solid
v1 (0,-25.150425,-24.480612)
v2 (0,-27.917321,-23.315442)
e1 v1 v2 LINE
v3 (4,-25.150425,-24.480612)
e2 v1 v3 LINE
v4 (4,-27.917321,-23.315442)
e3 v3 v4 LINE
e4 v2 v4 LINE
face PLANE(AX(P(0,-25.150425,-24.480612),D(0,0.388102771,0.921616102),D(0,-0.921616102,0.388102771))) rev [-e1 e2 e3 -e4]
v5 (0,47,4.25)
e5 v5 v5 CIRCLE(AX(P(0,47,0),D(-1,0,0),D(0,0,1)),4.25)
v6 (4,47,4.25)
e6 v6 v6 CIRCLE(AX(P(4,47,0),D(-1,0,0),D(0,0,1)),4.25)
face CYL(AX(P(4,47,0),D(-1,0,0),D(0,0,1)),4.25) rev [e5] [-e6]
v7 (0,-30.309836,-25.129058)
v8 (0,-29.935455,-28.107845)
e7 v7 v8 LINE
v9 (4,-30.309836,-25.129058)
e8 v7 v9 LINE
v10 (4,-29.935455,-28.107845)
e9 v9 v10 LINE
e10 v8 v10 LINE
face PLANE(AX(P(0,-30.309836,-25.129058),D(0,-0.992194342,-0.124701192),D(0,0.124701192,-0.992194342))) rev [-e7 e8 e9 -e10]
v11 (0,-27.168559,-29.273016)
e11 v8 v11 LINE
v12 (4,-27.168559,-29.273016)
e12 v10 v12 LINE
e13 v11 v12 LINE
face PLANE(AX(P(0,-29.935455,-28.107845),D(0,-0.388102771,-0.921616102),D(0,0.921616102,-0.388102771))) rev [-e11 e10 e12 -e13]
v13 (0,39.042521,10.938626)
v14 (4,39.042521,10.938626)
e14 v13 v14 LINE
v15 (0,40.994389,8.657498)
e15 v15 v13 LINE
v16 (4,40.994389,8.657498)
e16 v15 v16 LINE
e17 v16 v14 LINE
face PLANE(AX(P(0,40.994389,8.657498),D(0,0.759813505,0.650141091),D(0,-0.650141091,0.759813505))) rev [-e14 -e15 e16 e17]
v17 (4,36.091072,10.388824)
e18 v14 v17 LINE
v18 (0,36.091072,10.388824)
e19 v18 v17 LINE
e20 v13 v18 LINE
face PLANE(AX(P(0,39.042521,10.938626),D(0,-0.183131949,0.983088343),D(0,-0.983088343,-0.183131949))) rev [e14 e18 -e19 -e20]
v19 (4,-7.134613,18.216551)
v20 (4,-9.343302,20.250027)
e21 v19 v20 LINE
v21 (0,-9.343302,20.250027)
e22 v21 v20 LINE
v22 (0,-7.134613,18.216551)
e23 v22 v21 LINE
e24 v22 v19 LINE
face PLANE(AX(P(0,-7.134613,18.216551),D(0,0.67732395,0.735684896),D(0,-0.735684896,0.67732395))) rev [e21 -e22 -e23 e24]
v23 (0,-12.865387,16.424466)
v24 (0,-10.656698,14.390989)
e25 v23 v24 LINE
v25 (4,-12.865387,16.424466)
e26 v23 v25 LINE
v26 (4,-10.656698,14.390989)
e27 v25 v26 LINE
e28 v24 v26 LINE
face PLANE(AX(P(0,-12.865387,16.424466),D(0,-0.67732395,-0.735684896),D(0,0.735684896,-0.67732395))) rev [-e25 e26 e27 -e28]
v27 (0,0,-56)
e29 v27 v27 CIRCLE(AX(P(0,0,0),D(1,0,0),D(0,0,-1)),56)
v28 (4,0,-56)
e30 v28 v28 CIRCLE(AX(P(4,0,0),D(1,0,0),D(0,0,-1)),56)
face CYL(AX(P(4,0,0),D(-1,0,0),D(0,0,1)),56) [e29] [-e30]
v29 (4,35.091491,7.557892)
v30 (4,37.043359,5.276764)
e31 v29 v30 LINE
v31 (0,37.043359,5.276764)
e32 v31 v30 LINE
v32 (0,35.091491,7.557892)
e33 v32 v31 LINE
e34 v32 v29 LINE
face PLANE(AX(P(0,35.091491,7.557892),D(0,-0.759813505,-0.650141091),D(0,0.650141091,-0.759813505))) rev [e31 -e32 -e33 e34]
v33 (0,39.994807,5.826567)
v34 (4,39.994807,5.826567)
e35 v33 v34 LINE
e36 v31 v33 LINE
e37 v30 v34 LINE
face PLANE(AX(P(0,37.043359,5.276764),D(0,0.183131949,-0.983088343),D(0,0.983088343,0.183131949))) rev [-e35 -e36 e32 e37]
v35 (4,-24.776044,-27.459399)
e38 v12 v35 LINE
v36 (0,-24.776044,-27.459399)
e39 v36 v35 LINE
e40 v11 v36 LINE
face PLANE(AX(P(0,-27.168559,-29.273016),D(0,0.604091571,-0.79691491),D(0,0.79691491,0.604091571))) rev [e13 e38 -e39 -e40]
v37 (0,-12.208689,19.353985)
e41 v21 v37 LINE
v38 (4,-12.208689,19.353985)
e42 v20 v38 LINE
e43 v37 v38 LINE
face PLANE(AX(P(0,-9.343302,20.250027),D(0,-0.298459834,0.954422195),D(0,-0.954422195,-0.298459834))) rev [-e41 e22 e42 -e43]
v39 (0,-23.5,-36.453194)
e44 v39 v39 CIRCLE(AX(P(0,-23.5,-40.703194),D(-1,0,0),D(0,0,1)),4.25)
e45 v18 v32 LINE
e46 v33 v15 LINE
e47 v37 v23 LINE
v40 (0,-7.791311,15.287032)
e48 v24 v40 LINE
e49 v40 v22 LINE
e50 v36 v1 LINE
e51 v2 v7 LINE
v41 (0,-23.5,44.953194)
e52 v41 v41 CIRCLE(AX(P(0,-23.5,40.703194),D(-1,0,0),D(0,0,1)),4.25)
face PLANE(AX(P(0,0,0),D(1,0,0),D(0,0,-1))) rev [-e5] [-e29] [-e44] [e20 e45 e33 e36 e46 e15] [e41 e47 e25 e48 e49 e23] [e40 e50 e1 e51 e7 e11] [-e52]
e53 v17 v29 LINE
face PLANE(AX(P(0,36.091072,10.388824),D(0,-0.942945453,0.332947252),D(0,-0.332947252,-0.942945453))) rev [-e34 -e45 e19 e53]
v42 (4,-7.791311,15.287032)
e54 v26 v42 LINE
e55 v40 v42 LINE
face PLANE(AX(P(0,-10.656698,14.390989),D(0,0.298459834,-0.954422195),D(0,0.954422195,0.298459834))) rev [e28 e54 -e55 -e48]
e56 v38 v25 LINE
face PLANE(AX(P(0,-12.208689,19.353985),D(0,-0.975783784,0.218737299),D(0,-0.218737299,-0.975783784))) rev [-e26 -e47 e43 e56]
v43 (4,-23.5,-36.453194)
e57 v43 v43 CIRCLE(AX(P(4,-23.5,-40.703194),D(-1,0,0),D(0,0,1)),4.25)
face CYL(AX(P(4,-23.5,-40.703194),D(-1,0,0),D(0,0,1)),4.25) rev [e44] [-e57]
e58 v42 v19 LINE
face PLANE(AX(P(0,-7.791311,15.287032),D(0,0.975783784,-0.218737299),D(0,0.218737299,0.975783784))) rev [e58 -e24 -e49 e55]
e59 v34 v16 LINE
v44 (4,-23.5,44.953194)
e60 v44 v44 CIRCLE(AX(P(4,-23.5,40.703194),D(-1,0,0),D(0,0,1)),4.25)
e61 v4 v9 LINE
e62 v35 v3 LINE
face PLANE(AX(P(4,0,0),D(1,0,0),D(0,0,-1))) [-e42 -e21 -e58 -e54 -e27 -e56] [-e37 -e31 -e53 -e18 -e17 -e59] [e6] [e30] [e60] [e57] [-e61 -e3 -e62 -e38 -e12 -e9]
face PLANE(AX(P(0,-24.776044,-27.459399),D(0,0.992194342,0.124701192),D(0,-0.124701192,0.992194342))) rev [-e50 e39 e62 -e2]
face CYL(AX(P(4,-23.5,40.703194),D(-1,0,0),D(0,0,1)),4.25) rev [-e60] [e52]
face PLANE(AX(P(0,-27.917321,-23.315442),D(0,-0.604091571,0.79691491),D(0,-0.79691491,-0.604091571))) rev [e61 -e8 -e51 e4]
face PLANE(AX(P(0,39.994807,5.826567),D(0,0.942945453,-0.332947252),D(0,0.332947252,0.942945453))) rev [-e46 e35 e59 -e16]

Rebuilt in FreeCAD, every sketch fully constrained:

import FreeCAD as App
import Part
import Sketcher
from FreeCAD import Vector

doc = App.newDocument("Part")
params = doc.addObject("Spreadsheet::Sheet", "Params")
for row, (alias, value) in enumerate([
    ("sketch1_diameter", "112 mm"),
    ("pad1_length", "4 mm"),
    ("sketch2_diameter", "8.5 mm"),
], start=1):
    params.set(f"A{row}", alias)
    params.set(f"B{row}", "=" + value)
    params.setAlias(f"B{row}", alias)

body = doc.addObject("PartDesign::Body", "Body")

# Sketch on YZ plane
sketch1 = body.newObject("Sketcher::SketchObject", "Sketch")
sketch1.AttachmentSupport = (doc.getObject("YZ_Plane"), [""])
sketch1.MapMode = "FlatFace"
sketch1.addGeometry(Part.Circle(Vector(0, 0, 0), Vector(0, 0, 1), 56), False)
sketch1.addConstraint(Sketcher.Constraint("Coincident", 0, 3, -1, 1))
sketch1.addConstraint(Sketcher.Constraint("Diameter", 0, 112.0))
sketch1.setExpression("Constraints[1]", "Params.sketch1_diameter")
pad1 = body.newObject("PartDesign::Pad", "Pad")
pad1.Profile = sketch1
pad1.setExpression("Length", "Params.pad1_length")

# Sketch on YZ plane
sketch2 = body.newObject("Sketcher::SketchObject", "Sketch001")
sketch2.AttachmentSupport = (doc.getObject("YZ_Plane"), [""])
sketch2.MapMode = "FlatFace"
sketch2.addGeometry(Part.Circle(Vector(47, 0, 0), Vector(0, 0, 1), 4.25), False)
sketch2.addGeometry(Part.Circle(Vector(-23.5, 40.703194, 0), Vector(0, 0, 1), 4.25), False)
sketch2.addGeometry(Part.Circle(Vector(-23.5, -40.703194, 0), Vector(0, 0, 1), 4.25), False)
sketch2.addConstraint(Sketcher.Constraint("Equal", 0, 1))
sketch2.addConstraint(Sketcher.Constraint("Equal", 1, 2))
sketch2.addConstraint(Sketcher.Constraint("Symmetric", 1, 3, 2, 3, -1))
sketch2.addConstraint(Sketcher.Constraint("PointOnObject", 0, 3, -1))
sketch2.addConstraint(Sketcher.Constraint("Diameter", 0, 8.5))
sketch2.addConstraint(Sketcher.Constraint("DistanceX", -1, 1, 0, 3, 47.0))
sketch2.addConstraint(Sketcher.Constraint("DistanceX", 1, 3, -1, 1, 23.5))
sketch2.addConstraint(Sketcher.Constraint("DistanceY", -1, 1, 1, 3, 40.703194))
sketch2.setExpression("Constraints[4]", "Params.sketch2_diameter")
pocket1 = body.newObject("PartDesign::Pocket", "Pocket")
pocket1.Profile = sketch2
pocket1.Type = "ThroughAll"
pocket1.Reversed = True

# Sketch on YZ plane
sketch3 = body.newObject("Sketcher::SketchObject", "Sketch002")
sketch3.AttachmentSupport = (doc.getObject("YZ_Plane"), [""])
sketch3.MapMode = "FlatFace"
sketch3.AttachmentOffset = App.Placement(Vector(0, 0, 4), App.Rotation())
sketch3.addGeometry(Part.LineSegment(Vector(-24.776044, -27.459399, 0), Vector(-25.150425, -24.480612, 0)), False)
sketch3.addGeometry(Part.LineSegment(Vector(-25.150425, -24.480612, 0), Vector(-27.917321, -23.315442, 0)), False)
sketch3.addGeometry(Part.LineSegment(Vector(-27.917321, -23.315442, 0), Vector(-30.309836, -25.129058, 0)), False)
sketch3.addGeometry(Part.LineSegment(Vector(-30.309836, -25.129058, 0), Vector(-29.935455, -28.107845, 0)), False)
sketch3.addGeometry(Part.LineSegment(Vector(-29.935455, -28.107845, 0), Vector(-27.168559, -29.273016, 0)), False)
sketch3.addGeometry(Part.LineSegment(Vector(-27.168559, -29.273016, 0), Vector(-24.776044, -27.459399, 0)), False)
sketch3.addGeometry(Part.LineSegment(Vector(36.091072, 10.388824, 0), Vector(35.091491, 7.557893, 0)), False)
sketch3.addGeometry(Part.LineSegment(Vector(35.091491, 7.557893, 0), Vector(37.043359, 5.276764, 0)), False)
sketch3.addGeometry(Part.LineSegment(Vector(37.043359, 5.276764, 0), Vector(39.994807, 5.826567, 0)), False)
sketch3.addGeometry(Part.LineSegment(Vector(39.994807, 5.826567, 0), Vector(40.994389, 8.657498, 0)), False)
sketch3.addGeometry(Part.LineSegment(Vector(40.994389, 8.657498, 0), Vector(39.042521, 10.938626, 0)), False)
sketch3.addGeometry(Part.LineSegment(Vector(39.042521, 10.938626, 0), Vector(36.091072, 10.388824, 0)), False)
sketch3.addGeometry(Part.LineSegment(Vector(-12.865387, 16.424466, 0), Vector(-10.656698, 14.390989, 0)), False)
sketch3.addGeometry(Part.LineSegment(Vector(-10.656698, 14.390989, 0), Vector(-7.791311, 15.287032, 0)), False)
sketch3.addGeometry(Part.LineSegment(Vector(-7.791311, 15.287032, 0), Vector(-7.134613, 18.216551, 0)), False)
sketch3.addGeometry(Part.LineSegment(Vector(-7.134613, 18.216551, 0), Vector(-9.343302, 20.250027, 0)), False)
sketch3.addGeometry(Part.LineSegment(Vector(-9.343302, 20.250027, 0), Vector(-12.208689, 19.353985, 0)), False)
sketch3.addGeometry(Part.LineSegment(Vector(-12.208689, 19.353985, 0), Vector(-12.865387, 16.424466, 0)), False)
sketch3.addConstraint(Sketcher.Constraint("Coincident", 0, 2, 1, 1))
sketch3.addConstraint(Sketcher.Constraint("Coincident", 1, 2, 2, 1))
sketch3.addConstraint(Sketcher.Constraint("Coincident", 2, 2, 3, 1))
sketch3.addConstraint(Sketcher.Constraint("Coincident", 3, 2, 4, 1))
sketch3.addConstraint(Sketcher.Constraint("Coincident", 4, 2, 5, 1))
sketch3.addConstraint(Sketcher.Constraint("Coincident", 5, 2, 0, 1))
sketch3.addConstraint(Sketcher.Constraint("Coincident", 6, 2, 7, 1))
sketch3.addConstraint(Sketcher.Constraint("Coincident", 7, 2, 8, 1))
sketch3.addConstraint(Sketcher.Constraint("Coincident", 8, 2, 9, 1))
sketch3.addConstraint(Sketcher.Constraint("Coincident", 9, 2, 10, 1))
sketch3.addConstraint(Sketcher.Constraint("Coincident", 10, 2, 11, 1))
sketch3.addConstraint(Sketcher.Constraint("Coincident", 11, 2, 6, 1))
sketch3.addConstraint(Sketcher.Constraint("Coincident", 12, 2, 13, 1))
sketch3.addConstraint(Sketcher.Constraint("Coincident", 13, 2, 14, 1))
sketch3.addConstraint(Sketcher.Constraint("Coincident", 14, 2, 15, 1))
sketch3.addConstraint(Sketcher.Constraint("Coincident", 15, 2, 16, 1))
sketch3.addConstraint(Sketcher.Constraint("Coincident", 16, 2, 17, 1))
sketch3.addConstraint(Sketcher.Constraint("Coincident", 17, 2, 12, 1))
sketch3.addConstraint(Sketcher.Constraint("Parallel", 0, 3))
sketch3.addConstraint(Sketcher.Constraint("Parallel", 1, 4))
sketch3.addConstraint(Sketcher.Constraint("Parallel", 2, 5))
sketch3.addConstraint(Sketcher.Constraint("Parallel", 6, 9))
sketch3.addConstraint(Sketcher.Constraint("Parallel", 7, 10))
sketch3.addConstraint(Sketcher.Constraint("Parallel", 8, 11))
sketch3.addConstraint(Sketcher.Constraint("Parallel", 12, 15))
sketch3.addConstraint(Sketcher.Constraint("Parallel", 13, 16))
sketch3.addConstraint(Sketcher.Constraint("Parallel", 14, 17))
sketch3.addConstraint(Sketcher.Constraint("Equal", 0, 1))
sketch3.addConstraint(Sketcher.Constraint("Equal", 1, 2))
sketch3.addConstraint(Sketcher.Constraint("Equal", 2, 3))
sketch3.addConstraint(Sketcher.Constraint("Equal", 5, 6))
sketch3.addConstraint(Sketcher.Constraint("Equal", 6, 7))
sketch3.addConstraint(Sketcher.Constraint("Equal", 7, 8))
sketch3.addConstraint(Sketcher.Constraint("Equal", 8, 9))
sketch3.addConstraint(Sketcher.Constraint("Equal", 11, 12))
sketch3.addConstraint(Sketcher.Constraint("Equal", 12, 13))
sketch3.addConstraint(Sketcher.Constraint("Equal", 13, 14))
sketch3.addConstraint(Sketcher.Constraint("Equal", 14, 15))
sketch3.addConstraint(Sketcher.Constraint("DistanceY", 5, 2, -1, 1, 27.459399))
sketch3.addConstraint(Sketcher.Constraint("DistanceY", 0, 2, 12, 2, 38.871601))
sketch3.addConstraint(Sketcher.Constraint("Distance", 0, 3.002221))
sketch3.addConstraint(Sketcher.Constraint("DistanceY", 0, 2, -1, 1, 24.480612))
sketch3.addConstraint(Sketcher.Constraint("DistanceX", 1, 2, -1, 1, 27.917321))
sketch3.addConstraint(Sketcher.Constraint("DistanceY", 1, 2, -1, 1, 23.315442))
sketch3.addConstraint(Sketcher.Constraint("DistanceY", 2, 2, -1, 1, 25.129058))
sketch3.addConstraint(Sketcher.Constraint("DistanceX", -1, 1, 6, 2, 35.091491))
sketch3.addConstraint(Sketcher.Constraint("DistanceX", -1, 1, 7, 2, 37.043359))
sketch3.addConstraint(Sketcher.Constraint("DistanceX", -1, 1, 9, 2, 40.994389))
sketch3.addConstraint(Sketcher.Constraint("DistanceX", 13, 2, -1, 1, 7.791311))
sketch3.addConstraint(Sketcher.Constraint("DistanceY", -1, 1, 13, 2, 15.287032))
sketch3.addConstraint(Sketcher.Constraint("DistanceY", -1, 1, 14, 2, 18.216551))
sketch3.addConstraint(Sketcher.Constraint("DistanceX", 16, 2, -1, 1, 12.208689))
sketch3.addConstraint(Sketcher.Constraint("DistanceY", 5, 2, 6, 2, 35.017292))
sketch3.addConstraint(Sketcher.Constraint("DistanceX", 7, 2, 8, 2, 2.951449))
pocket2 = body.newObject("PartDesign::Pocket", "Pocket001")
pocket2.Profile = sketch3
pocket2.Type = "ThroughAll"

doc.recompute()
